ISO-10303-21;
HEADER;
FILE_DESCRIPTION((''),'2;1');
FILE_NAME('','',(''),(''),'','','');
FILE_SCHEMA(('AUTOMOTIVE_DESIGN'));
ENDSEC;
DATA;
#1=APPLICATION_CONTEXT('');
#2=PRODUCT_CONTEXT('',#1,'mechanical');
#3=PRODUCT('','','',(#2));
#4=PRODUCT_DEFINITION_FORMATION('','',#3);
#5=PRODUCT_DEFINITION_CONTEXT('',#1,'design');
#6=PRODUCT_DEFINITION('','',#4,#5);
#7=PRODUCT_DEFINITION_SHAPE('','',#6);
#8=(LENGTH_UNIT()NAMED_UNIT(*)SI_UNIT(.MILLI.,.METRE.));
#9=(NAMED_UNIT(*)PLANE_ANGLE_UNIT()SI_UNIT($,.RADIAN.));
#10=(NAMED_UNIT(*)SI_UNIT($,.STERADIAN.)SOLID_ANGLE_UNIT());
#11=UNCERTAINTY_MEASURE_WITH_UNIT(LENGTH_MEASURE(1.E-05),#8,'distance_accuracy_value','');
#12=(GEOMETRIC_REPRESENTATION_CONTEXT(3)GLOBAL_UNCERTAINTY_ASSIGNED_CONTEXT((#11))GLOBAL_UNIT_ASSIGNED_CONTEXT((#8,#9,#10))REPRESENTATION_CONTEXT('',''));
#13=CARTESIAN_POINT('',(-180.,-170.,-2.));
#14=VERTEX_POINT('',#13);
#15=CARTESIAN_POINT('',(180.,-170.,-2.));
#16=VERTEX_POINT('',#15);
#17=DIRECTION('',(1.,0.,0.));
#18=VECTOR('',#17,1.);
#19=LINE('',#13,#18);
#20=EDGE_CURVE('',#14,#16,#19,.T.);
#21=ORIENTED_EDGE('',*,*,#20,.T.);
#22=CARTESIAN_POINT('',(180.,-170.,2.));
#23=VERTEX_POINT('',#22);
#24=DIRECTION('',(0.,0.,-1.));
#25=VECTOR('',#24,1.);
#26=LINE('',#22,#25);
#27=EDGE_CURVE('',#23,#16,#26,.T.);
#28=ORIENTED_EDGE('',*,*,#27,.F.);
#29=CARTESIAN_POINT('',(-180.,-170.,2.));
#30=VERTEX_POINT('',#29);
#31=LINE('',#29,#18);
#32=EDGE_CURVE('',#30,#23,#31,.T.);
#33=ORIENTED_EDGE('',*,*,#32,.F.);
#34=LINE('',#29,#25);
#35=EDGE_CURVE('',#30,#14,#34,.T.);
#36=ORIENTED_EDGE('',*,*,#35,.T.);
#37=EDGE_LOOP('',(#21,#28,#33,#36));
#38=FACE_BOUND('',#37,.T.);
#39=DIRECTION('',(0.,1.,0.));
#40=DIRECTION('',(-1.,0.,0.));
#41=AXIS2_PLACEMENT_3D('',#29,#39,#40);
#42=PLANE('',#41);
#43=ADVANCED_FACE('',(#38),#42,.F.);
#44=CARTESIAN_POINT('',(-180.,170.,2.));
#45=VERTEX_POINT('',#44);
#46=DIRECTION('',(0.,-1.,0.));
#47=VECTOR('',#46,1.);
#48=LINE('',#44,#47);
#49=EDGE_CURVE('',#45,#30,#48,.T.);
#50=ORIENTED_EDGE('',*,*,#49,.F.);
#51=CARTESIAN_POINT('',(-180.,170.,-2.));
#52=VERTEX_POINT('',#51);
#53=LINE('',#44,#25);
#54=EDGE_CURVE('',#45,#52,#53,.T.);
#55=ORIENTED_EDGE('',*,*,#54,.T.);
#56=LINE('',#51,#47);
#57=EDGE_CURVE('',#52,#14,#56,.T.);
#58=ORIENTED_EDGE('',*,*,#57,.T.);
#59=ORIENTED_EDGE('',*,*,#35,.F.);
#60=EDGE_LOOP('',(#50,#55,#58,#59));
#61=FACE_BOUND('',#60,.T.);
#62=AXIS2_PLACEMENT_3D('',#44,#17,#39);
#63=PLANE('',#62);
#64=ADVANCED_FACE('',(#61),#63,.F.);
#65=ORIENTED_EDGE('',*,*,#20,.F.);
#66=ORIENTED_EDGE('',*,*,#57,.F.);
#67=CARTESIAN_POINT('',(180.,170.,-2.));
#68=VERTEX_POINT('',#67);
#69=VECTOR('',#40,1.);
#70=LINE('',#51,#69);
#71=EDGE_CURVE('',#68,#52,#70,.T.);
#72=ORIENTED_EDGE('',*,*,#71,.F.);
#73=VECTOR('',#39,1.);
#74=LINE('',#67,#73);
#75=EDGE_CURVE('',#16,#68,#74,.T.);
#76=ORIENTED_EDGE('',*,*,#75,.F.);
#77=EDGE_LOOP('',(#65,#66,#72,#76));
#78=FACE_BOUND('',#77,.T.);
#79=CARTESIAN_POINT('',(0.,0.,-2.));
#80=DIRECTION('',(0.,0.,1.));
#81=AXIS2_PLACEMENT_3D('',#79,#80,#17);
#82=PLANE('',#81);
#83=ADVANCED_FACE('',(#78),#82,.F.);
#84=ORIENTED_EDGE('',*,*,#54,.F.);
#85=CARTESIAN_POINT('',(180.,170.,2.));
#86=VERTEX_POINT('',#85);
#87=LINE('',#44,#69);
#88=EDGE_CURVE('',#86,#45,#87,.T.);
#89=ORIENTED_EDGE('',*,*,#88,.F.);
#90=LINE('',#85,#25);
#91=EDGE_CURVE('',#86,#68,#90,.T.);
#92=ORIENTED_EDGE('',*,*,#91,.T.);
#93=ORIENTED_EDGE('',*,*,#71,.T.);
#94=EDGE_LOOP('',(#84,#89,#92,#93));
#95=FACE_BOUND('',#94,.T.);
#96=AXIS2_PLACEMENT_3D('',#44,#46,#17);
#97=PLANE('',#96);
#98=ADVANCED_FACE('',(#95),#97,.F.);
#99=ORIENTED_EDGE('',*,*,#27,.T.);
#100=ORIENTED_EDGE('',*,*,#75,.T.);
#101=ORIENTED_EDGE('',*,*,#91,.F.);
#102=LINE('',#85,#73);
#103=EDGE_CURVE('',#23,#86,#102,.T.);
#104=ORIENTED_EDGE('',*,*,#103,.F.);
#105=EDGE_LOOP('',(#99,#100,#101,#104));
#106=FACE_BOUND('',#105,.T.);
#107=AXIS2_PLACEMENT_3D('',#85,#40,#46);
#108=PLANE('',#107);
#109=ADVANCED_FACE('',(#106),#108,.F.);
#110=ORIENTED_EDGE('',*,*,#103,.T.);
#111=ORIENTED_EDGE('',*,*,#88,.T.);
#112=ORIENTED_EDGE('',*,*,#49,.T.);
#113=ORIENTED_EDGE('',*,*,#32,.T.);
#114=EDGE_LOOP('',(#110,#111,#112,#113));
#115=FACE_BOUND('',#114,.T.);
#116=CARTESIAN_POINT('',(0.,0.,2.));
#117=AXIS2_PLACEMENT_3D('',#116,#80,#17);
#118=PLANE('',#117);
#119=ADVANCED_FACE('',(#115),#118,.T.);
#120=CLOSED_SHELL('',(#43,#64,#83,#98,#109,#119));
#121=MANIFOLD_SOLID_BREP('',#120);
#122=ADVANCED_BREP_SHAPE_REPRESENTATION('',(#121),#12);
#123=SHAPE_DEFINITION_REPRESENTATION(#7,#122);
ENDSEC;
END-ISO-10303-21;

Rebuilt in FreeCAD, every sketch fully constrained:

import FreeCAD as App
import Part
import Sketcher

doc = App.newDocument("Part")
body = doc.addObject("PartDesign::Body", "Body")

# Sketch on XY plane
sketch1 = body.newObject("Sketcher::SketchObject", "Sketch")
sketch1.AttachmentSupport = (doc.getObject("XY_Plane"), [""])
sketch1.MapMode = "FlatFace"
sketch1.addGeometry([
    Part.LineSegment(App.Vector(-180, 170, 0), App.Vector(-180, -170, 0)),
    Part.LineSegment(App.Vector(-180, -170, 0), App.Vector(180, -170, 0)),
    Part.LineSegment(App.Vector(180, -170, 0), App.Vector(180, 170, 0)),
    Part.LineSegment(App.Vector(180, 170, 0), App.Vector(-180, 170, 0)),
], False)
sketch1.addConstraint([
    Sketcher.Constraint("Coincident", 0, 2, 1, 1),
    Sketcher.Constraint("Coincident", 1, 2, 2, 1),
    Sketcher.Constraint("Coincident", 2, 2, 3, 1),
    Sketcher.Constraint("Coincident", 3, 2, 0, 1),
    Sketcher.Constraint("Vertical", 0),
    Sketcher.Constraint("Horizontal", 1),
    Sketcher.Constraint("Vertical", 2),
    Sketcher.Constraint("Horizontal", 3),
    Sketcher.Constraint("Symmetric", 0, 2, 2, 2, -1, 1),
    Sketcher.Constraint("DistanceX", 1, 1, 1, 2, 360.0),
    Sketcher.Constraint("DistanceY", 0, 2, 0, 1, 340.0),
])
pad1 = body.newObject("PartDesign::Pad", "Pad")
pad1.Profile = sketch1
pad1.Length = 4
pad1.Midplane = True

doc.recompute()
